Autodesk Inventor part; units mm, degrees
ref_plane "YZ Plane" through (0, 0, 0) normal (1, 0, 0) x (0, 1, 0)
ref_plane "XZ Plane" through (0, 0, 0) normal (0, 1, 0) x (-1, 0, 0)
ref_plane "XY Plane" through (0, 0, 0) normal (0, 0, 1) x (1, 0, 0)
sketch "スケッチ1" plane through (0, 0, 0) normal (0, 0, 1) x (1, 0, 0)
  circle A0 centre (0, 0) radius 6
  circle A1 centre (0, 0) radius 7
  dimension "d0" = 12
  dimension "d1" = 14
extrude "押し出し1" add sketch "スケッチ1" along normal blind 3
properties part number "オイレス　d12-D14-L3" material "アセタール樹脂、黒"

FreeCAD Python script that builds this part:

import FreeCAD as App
import Part
import Sketcher

V = App.Vector
Q = App.Units.Quantity

doc = App.newDocument("Part")
body = doc.addObject("PartDesign::Body", "Body")

sketch1 = doc.addObject("Sketcher::SketchObject", "Sketch")
body.addObject(sketch1)
sketch1.AttachmentSupport = (doc.XY_Plane, [""])
sketch1.MapMode = "FlatFace"
sketch1.addGeometry(Part.Circle(V(0, 0, 0), V(0, 0, 1), 7), False)
sketch1.addGeometry(Part.Circle(V(0, 0, 0), V(0, 0, 1), 6), False)
sketch1.addConstraint(Sketcher.Constraint("Coincident", 0, 3, -1, 1))
sketch1.addConstraint(Sketcher.Constraint("Coincident", 1, 3, -1, 1))
sketch1.addConstraint(Sketcher.Constraint("Diameter", 0, Q("14 mm")))
sketch1.addConstraint(Sketcher.Constraint("Diameter", 1, Q("12 mm")))
pad1 = doc.addObject("PartDesign::Pad", "Pad")
body.addObject(pad1)
pad1.Profile = sketch1
pad1.Length = 3

doc.recompute()
